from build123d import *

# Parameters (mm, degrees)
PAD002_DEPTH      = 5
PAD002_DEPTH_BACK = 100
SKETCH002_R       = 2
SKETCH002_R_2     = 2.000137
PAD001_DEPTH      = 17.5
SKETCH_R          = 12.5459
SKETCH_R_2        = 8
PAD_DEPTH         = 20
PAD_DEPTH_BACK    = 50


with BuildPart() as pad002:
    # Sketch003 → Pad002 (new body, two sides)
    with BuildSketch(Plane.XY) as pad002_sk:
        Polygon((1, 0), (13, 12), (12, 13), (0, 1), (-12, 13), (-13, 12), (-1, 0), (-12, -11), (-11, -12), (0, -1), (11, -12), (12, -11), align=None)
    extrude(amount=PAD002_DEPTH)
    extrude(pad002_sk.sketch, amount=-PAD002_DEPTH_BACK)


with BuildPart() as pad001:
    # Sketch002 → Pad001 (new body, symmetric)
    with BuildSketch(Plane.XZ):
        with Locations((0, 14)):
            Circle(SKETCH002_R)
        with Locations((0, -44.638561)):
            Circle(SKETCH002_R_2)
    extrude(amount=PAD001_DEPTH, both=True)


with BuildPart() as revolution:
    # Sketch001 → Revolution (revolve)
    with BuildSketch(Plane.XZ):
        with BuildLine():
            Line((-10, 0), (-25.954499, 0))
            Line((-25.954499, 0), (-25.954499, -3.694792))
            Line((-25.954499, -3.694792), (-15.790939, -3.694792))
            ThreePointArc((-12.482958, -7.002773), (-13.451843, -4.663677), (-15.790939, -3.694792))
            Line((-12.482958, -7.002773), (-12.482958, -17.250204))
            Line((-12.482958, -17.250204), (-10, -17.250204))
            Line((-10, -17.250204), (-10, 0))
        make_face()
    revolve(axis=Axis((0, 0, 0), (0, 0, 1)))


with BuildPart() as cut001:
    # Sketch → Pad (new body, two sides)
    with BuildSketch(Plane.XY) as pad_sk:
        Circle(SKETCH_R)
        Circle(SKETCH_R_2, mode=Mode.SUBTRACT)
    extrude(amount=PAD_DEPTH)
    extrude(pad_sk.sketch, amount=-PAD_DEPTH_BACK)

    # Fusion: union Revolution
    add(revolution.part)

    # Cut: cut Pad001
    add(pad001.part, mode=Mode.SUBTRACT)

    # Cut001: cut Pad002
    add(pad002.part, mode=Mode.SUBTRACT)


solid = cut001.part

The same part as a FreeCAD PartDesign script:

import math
import FreeCAD as App
import Part
import Sketcher
from FreeCAD import Vector
Q = App.Units.Quantity


def add_polygon(sketch, points):
    """Adds a closed chain of lines whose ends are joined by coincident constraints."""
    first, n = sketch.GeometryCount, len(points)
    for a, b in zip(points, points[1:] + points[:1]):
        sketch.addGeometry(Part.LineSegment(App.Vector(*a, 0), App.Vector(*b, 0)), False)
    for i in range(n):
        sketch.addConstraint(Sketcher.Constraint("Coincident", first + i, 2, first + (i + 1) % n, 1))

doc = App.newDocument("Part")
body = doc.addObject("PartDesign::Body", "Body")

# Sketch on XY plane
sketch1 = doc.addObject("Sketcher::SketchObject", "Sketch")
body.addObject(sketch1)
sketch1.AttachmentSupport = (doc.XY_Plane, [""])
sketch1.MapMode = "FlatFace"
add_polygon(sketch1, [(1, 0), (13, 12), (12, 13), (0, 1), (-12, 13), (-13, 12), (-1, 0), (-12, -11), (-11, -12), (0, -1), (11, -12), (12, -11)])  # lines 0-11
sketch1.addConstraint([
    Sketcher.Constraint("Symmetric", 2, 2, 8, 2, -1, 1),
    Sketcher.Constraint("Symmetric", 5, 2, 11, 2, -1, 1),
    Sketcher.Constraint("Symmetric", 1, 2, 3, 2, -2),
    Sketcher.Constraint("Symmetric", 0, 2, 4, 2, -2),
    Sketcher.Constraint("Symmetric", 7, 2, 9, 2, -2),
    Sketcher.Constraint("Symmetric", 6, 2, 10, 2, -2),
    Sketcher.Constraint("PointOnObject", 2, 2, -2),
    Sketcher.Constraint("PointOnObject", 5, 2, -1),
    Sketcher.Constraint("Perpendicular", 0, 1),
    Sketcher.Constraint("Perpendicular", 1, 2),
    Sketcher.Constraint("Perpendicular", 2, 3),
    Sketcher.Constraint("Perpendicular", 5, 6),
    Sketcher.Constraint("Perpendicular", 6, 7),
    Sketcher.Constraint("Perpendicular", 7, 8),
    Sketcher.Constraint("Vertical", 3, 2, 6, 2),
    Sketcher.Constraint("Equal", 0, 2),
    Sketcher.Constraint("DistanceX", -1, 1, 0, 2, Q("13 mm")),
    Sketcher.Constraint("DistanceY", -1, 1, 0, 2, Q("12 mm")),
])
pad1 = doc.addObject("PartDesign::Pad", "Pad")
body.addObject(pad1)
pad1.Profile = sketch1
pad1.Type = "TwoLengths"
pad1.Length = 5
pad1.Length2 = 100
body2 = doc.addObject("PartDesign::Body", "Body001")
body2.AllowCompound = True

# Sketch on XZ plane
sketch2 = doc.addObject("Sketcher::SketchObject", "Sketch001")
body2.addObject(sketch2)
sketch2.AttachmentSupport = (doc.getObject("XZ_Plane001"), [""])
sketch2.MapMode = "FlatFace"
sketch2.addGeometry([
    Part.Circle(Vector(0, 14, 0), Vector(0, 0, 1), 2),
    Part.Circle(Vector(0, -44.6, 0), Vector(0, 0, 1), 2),
], False)
sketch2.addConstraint([
    Sketcher.Constraint("PointOnObject", 0, 3, -2),
    Sketcher.Constraint("PointOnObject", 1, 3, -2),
    Sketcher.Constraint("Diameter", 0, Q("4 mm")),
    Sketcher.Constraint("DistanceY", -1, 1, 0, 3, Q("14 mm")),
    Sketcher.Constraint("Diameter", 1, Q("4.000274 mm")),
    Sketcher.Constraint("DistanceY", 1, 3, -1, 1, Q("44.638561 mm")),
])
pad2 = doc.addObject("PartDesign::Pad", "Pad001")
body2.addObject(pad2)
pad2.Profile = sketch2
pad2.Length = 35
pad2.Midplane = True
body3 = doc.addObject("PartDesign::Body", "Body002")

# Sketch on XZ plane
sketch3 = doc.addObject("Sketcher::SketchObject", "Sketch002")
body3.addObject(sketch3)
sketch3.AttachmentSupport = (doc.getObject("XZ_Plane002"), [""])
sketch3.MapMode = "FlatFace"
sketch3.addGeometry([
    Part.LineSegment(Vector(-10, 0, 0), Vector(-26, 0, 0)),  # 0
    Part.LineSegment(Vector(-26, 0, 0), Vector(-26, -3.7, 0)),  # 1
    Part.LineSegment(Vector(-26, -3.7, 0), Vector(-15.8, -3.7, 0)),  # 2
    Part.ArcOfCircle(Part.Circle(Vector(-15.8, -7, 0), Vector(0, 0, 1), 3.3), math.radians(0), math.radians(90)),  # 3
    Part.LineSegment(Vector(-12.5, -7, 0), Vector(-12.5, -17.3, 0)),  # 4
    Part.LineSegment(Vector(-12.5, -17.3, 0), Vector(-10, -17.3, 0)),  # 5
    Part.LineSegment(Vector(-10, -17.3, 0), Vector(-10, 0, 0)),  # 6
], False)
sketch3.addConstraint([
    Sketcher.Constraint("Coincident", 0, 2, 1, 1),
    Sketcher.Constraint("Coincident", 1, 2, 2, 1),
    Sketcher.Constraint("Tangent", 2, 2, 3, 2),
    Sketcher.Constraint("Tangent", 3, 1, 4, 1),
    Sketcher.Constraint("Coincident", 4, 2, 5, 1),
    Sketcher.Constraint("Coincident", 5, 2, 6, 1),
    Sketcher.Constraint("Coincident", 6, 2, 0, 1),
    Sketcher.Constraint("Horizontal", 0),
    Sketcher.Constraint("Vertical", 1),
    Sketcher.Constraint("Horizontal", 2),
    Sketcher.Constraint("Vertical", 4),
    Sketcher.Constraint("Horizontal", 5),
    Sketcher.Constraint("Vertical", 6),
    Sketcher.Constraint("PointOnObject", 0, 2, -1),
    Sketcher.Constraint("DistanceX", 5, 2, -1, 1, Q("10 mm")),
    Sketcher.Constraint("Radius", 3, Q("3.30798 mm")),
    Sketcher.Constraint("DistanceX", 0, 2, 0, 1, Q("15.954499 mm")),
    Sketcher.Constraint("DistanceX", 2, 1, 2, 2, Q("10.16356 mm")),
    Sketcher.Constraint("DistanceY", 4, 2, 4, 1, Q("10.247431 mm")),
    Sketcher.Constraint("DistanceY", 1, 2, 1, 1, Q("3.694792 mm")),
])
revolution = doc.addObject("PartDesign::Revolution", "Revolution")
body3.addObject(revolution)
revolution.Profile = sketch3
revolution.ReferenceAxis = (sketch3, ["V_Axis"])
revolution.Angle = 360
body4 = doc.addObject("PartDesign::Body", "Body003")

# Sketch on XY plane
sketch4 = doc.addObject("Sketcher::SketchObject", "Sketch003")
body4.addObject(sketch4)
sketch4.AttachmentSupport = (doc.getObject("XY_Plane003"), [""])
sketch4.MapMode = "FlatFace"
sketch4.addGeometry([
    Part.Circle(Vector(0, 0, 0), Vector(0, 0, 1), 13),
    Part.Circle(Vector(0, 0, 0), Vector(0, 0, 1), 8),
], False)
sketch4.addConstraint([
    Sketcher.Constraint("Coincident", 0, 3, -1, 1),
    Sketcher.Constraint("Coincident", 1, 3, -1, 1),
    Sketcher.Constraint("Diameter", 1, Q("16 mm")),
    Sketcher.Constraint("Diameter", 0, Q("25.0918 mm")),
])
pad3 = doc.addObject("PartDesign::Pad", "Pad002")
body4.addObject(pad3)
pad3.Profile = sketch4
pad3.Type = "TwoLengths"
pad3.Length = 20
pad3.Length2 = 50
doc.recompute()

boolean = doc.addObject("PartDesign::Boolean", "Boolean")
body4.addObject(boolean)
boolean.Type = "Fuse"
boolean.addObjects([body3])
doc.recompute()

boolean2 = doc.addObject("PartDesign::Boolean", "Boolean001")
body4.addObject(boolean2)
boolean2.Type = "Cut"
boolean2.addObjects([body2])
doc.recompute()

boolean3 = doc.addObject("PartDesign::Boolean", "Boolean002")
body4.addObject(boolean3)
boolean3.Type = "Cut"
boolean3.addObjects([body])

doc.recompute()
